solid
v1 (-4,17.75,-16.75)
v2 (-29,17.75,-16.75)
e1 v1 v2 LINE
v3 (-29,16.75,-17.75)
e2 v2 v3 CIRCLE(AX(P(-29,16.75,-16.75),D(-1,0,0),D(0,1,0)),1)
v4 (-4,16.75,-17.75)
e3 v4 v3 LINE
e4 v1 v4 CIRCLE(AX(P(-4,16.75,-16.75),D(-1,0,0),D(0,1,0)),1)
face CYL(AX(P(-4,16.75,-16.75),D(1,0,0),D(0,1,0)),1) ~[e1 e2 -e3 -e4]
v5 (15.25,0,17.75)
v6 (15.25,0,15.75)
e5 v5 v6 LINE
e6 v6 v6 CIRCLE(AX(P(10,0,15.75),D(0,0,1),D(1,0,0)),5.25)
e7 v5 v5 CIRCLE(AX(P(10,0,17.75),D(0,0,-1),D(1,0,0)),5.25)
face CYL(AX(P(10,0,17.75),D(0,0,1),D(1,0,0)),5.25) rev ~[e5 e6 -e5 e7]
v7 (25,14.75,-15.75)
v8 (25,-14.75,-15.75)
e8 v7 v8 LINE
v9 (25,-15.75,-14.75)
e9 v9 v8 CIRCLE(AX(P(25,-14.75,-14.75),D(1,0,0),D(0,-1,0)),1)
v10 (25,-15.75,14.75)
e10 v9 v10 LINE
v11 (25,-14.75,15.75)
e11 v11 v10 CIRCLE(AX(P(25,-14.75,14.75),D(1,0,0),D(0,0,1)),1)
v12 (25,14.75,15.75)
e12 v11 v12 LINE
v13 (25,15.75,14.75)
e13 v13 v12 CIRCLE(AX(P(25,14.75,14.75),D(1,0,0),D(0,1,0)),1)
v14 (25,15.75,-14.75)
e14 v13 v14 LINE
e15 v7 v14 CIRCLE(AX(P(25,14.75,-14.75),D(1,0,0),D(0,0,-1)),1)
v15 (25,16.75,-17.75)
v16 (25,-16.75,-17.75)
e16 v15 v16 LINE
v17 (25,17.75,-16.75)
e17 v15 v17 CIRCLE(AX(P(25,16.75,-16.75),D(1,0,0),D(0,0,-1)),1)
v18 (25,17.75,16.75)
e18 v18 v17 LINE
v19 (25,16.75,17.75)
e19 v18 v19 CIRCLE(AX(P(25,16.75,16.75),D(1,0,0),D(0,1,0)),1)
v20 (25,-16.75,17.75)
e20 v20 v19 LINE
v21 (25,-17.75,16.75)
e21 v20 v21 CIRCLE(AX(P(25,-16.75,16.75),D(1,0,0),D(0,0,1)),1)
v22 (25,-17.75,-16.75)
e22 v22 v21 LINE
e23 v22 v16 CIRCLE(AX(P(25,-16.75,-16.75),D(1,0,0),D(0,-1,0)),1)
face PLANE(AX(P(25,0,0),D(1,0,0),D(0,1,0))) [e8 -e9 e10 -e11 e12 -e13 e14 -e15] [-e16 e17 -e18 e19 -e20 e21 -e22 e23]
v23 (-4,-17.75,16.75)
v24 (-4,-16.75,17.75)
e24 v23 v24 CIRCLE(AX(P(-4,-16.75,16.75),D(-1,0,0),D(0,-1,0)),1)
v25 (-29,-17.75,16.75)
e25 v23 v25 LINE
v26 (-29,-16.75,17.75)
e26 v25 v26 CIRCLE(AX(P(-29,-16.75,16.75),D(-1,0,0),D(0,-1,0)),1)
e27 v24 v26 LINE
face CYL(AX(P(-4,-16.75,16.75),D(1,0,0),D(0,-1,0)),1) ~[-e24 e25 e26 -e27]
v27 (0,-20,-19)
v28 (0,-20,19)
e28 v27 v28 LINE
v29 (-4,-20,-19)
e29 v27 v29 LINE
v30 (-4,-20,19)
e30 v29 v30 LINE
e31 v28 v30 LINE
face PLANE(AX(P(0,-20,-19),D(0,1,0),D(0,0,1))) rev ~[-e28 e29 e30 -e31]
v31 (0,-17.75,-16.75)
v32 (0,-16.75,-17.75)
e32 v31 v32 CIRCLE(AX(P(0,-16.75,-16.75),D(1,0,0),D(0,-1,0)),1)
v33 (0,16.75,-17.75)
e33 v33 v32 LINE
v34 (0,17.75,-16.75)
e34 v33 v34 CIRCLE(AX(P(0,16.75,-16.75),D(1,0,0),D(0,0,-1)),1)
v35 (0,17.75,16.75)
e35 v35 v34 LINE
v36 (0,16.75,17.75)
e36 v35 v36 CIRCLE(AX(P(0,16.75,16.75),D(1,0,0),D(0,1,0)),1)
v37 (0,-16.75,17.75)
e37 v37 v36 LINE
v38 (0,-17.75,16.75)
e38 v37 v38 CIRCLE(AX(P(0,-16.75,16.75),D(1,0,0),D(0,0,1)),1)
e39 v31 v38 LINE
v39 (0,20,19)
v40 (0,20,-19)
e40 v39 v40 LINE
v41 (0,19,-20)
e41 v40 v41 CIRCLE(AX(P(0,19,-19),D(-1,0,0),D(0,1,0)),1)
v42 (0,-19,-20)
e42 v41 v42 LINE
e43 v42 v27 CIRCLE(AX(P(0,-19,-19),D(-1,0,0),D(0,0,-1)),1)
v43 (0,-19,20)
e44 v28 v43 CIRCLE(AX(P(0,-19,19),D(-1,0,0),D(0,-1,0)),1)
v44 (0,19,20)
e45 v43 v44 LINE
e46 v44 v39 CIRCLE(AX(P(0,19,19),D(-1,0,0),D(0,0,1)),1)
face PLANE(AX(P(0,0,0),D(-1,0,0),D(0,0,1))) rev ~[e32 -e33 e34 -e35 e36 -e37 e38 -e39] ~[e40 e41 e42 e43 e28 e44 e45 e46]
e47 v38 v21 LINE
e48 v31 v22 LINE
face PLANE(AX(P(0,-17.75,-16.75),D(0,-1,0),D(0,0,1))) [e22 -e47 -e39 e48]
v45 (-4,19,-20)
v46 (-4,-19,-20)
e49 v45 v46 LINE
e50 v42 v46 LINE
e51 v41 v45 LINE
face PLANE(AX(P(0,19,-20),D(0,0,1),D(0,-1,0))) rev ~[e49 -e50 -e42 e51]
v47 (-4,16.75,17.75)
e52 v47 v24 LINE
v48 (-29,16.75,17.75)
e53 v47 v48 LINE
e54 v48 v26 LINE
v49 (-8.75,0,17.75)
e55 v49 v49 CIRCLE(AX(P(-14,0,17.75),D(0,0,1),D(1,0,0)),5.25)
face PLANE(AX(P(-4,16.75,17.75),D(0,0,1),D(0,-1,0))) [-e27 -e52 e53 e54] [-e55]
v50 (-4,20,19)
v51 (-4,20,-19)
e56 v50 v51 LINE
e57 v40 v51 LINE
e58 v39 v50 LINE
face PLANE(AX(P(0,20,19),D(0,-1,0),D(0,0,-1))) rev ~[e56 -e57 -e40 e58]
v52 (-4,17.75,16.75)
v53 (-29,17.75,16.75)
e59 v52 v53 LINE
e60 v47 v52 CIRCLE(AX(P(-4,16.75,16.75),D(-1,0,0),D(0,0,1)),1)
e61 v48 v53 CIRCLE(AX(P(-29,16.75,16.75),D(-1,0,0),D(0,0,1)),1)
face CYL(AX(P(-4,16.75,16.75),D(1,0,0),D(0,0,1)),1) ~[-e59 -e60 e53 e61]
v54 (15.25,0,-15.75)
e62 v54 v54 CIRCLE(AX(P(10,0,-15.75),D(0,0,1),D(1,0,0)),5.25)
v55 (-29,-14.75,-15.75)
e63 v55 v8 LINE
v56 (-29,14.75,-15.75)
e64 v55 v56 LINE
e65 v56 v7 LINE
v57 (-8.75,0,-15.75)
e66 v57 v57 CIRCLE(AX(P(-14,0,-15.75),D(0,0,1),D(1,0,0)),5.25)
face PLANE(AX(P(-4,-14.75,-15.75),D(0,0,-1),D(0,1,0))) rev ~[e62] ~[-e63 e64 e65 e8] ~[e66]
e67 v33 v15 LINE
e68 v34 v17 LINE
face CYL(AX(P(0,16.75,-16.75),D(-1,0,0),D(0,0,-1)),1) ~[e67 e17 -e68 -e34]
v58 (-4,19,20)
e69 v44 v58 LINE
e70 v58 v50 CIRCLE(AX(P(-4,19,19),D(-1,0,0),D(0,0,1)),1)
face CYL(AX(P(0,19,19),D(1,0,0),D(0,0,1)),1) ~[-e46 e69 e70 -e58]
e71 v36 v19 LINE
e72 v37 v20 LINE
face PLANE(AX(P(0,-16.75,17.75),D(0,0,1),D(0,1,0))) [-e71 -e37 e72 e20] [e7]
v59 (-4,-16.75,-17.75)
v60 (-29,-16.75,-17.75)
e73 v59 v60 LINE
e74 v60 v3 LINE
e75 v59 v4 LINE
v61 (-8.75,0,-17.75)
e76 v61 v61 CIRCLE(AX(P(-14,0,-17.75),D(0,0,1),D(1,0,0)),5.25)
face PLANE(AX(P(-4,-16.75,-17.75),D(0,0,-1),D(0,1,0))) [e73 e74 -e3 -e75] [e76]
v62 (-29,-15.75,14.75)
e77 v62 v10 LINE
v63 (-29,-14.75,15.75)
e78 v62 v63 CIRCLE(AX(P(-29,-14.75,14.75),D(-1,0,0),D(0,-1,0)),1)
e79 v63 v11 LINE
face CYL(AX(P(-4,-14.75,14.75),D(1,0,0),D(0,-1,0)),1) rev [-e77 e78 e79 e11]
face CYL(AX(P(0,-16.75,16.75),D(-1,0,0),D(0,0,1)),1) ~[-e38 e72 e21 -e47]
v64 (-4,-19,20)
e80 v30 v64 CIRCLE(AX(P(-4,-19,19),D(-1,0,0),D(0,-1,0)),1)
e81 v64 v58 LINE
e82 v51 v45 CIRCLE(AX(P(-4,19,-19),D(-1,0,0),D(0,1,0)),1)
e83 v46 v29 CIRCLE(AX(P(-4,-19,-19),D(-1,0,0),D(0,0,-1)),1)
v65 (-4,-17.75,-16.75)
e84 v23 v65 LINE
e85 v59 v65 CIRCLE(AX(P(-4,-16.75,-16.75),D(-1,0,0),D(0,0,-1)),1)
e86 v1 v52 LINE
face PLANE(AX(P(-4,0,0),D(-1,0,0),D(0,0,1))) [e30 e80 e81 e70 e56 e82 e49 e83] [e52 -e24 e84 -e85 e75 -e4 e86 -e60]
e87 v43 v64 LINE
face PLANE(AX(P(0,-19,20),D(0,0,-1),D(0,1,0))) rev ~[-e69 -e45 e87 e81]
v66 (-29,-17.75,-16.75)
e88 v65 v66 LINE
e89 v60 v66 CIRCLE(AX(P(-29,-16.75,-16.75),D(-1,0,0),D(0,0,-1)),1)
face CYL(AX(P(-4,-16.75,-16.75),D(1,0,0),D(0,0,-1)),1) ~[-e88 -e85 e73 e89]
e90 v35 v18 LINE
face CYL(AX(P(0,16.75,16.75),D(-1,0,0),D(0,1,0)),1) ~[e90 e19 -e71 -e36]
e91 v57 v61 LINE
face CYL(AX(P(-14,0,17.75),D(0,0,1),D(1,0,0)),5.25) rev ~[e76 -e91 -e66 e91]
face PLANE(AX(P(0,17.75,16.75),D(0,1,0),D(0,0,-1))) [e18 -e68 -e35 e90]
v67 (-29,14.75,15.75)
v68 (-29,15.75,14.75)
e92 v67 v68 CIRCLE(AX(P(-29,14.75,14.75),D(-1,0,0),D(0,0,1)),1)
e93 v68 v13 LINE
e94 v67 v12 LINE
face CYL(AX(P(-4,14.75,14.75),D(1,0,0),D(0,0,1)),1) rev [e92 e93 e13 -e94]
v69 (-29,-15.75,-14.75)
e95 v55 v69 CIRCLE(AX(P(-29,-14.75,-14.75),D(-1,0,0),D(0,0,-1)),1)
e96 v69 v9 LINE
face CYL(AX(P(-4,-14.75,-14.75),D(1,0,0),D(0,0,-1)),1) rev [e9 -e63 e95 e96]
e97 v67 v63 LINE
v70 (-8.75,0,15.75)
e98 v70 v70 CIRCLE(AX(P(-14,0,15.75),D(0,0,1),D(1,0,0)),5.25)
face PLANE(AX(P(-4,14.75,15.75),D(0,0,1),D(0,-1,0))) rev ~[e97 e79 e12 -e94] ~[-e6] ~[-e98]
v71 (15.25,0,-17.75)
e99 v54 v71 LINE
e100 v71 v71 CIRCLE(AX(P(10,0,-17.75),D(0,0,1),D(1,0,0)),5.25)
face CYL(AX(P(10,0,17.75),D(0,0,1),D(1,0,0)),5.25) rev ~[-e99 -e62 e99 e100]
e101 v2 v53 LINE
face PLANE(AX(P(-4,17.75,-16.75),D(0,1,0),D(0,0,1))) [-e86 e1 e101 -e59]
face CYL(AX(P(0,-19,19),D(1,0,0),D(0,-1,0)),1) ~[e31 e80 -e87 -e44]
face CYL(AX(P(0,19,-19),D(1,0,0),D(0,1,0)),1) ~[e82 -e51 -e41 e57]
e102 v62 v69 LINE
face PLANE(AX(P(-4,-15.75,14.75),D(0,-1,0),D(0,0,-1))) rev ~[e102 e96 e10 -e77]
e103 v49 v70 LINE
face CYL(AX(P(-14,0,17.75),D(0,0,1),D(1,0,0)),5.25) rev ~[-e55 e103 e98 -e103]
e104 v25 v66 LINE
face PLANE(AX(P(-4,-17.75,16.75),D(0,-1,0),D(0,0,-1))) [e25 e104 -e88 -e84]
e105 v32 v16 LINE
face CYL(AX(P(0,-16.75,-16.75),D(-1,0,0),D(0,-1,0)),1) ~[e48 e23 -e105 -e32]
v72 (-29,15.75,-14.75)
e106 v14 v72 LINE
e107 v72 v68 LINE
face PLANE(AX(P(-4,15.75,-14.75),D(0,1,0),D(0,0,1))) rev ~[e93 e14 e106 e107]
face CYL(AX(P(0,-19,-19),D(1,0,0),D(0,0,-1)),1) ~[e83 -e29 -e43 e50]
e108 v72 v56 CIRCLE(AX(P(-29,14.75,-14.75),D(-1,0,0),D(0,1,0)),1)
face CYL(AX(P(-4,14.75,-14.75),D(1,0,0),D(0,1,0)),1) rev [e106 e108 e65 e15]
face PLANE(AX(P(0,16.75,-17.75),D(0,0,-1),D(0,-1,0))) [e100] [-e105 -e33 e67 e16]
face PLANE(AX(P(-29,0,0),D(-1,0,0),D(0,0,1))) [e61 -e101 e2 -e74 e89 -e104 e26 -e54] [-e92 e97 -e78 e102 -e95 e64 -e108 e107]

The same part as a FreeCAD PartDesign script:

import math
import FreeCAD as App
import Part
import Sketcher

doc = App.newDocument("Part")
body = doc.addObject("PartDesign::Body", "Body")

sketch1 = body.newObject("Sketcher::SketchObject", "Sketch")
sketch1.AttachmentSupport = (doc.getObject("YZ_Plane"), [""])
sketch1.MapMode = "FlatFace"
sketch1.addGeometry([
    Part.LineSegment(App.Vector(16.75, 17.75, 0), App.Vector(-16.75, 17.75, 0)),
    Part.ArcOfCircle(Part.Circle(App.Vector(-16.75, 16.75, 0), App.Vector(0, 0, 1), 1), math.radians(90), math.radians(180)),
    Part.LineSegment(App.Vector(-17.75, 16.75, 0), App.Vector(-17.75, -16.75, 0)),
    Part.ArcOfCircle(Part.Circle(App.Vector(-16.75, -16.75, 0), App.Vector(0, 0, 1), 1), math.radians(180), math.radians(270)),
    Part.LineSegment(App.Vector(-16.75, -17.75, 0), App.Vector(16.75, -17.75, 0)),
    Part.ArcOfCircle(Part.Circle(App.Vector(16.75, -16.75, 0), App.Vector(0, 0, 1), 1), math.radians(-90), math.radians(0)),
    Part.LineSegment(App.Vector(17.75, -16.75, 0), App.Vector(17.75, 16.75, 0)),
    Part.ArcOfCircle(Part.Circle(App.Vector(16.75, 16.75, 0), App.Vector(0, 0, 1), 1), math.radians(0), math.radians(90)),
    Part.ArcOfCircle(Part.Circle(App.Vector(-14.75, 14.75, 0), App.Vector(0, 0, 1), 1), math.radians(90), math.radians(180)),
    Part.LineSegment(App.Vector(-14.75, 15.75, 0), App.Vector(14.75, 15.75, 0)),
    Part.ArcOfCircle(Part.Circle(App.Vector(14.75, 14.75, 0), App.Vector(0, 0, 1), 1), math.radians(0), math.radians(90)),
    Part.LineSegment(App.Vector(15.75, 14.75, 0), App.Vector(15.75, -14.75, 0)),
    Part.ArcOfCircle(Part.Circle(App.Vector(14.75, -14.75, 0), App.Vector(0, 0, 1), 1), math.radians(-90), math.radians(0)),
    Part.LineSegment(App.Vector(14.75, -15.75, 0), App.Vector(-14.75, -15.75, 0)),
    Part.ArcOfCircle(Part.Circle(App.Vector(-14.75, -14.75, 0), App.Vector(0, 0, 1), 1), math.radians(180), math.radians(270)),
    Part.LineSegment(App.Vector(-15.75, -14.75, 0), App.Vector(-15.75, 14.75, 0)),
], False)
sketch1.addConstraint([
    Sketcher.Constraint("Tangent", 0, 2, 1, 1),
    Sketcher.Constraint("Tangent", 1, 2, 2, 1),
    Sketcher.Constraint("Tangent", 2, 2, 3, 1),
    Sketcher.Constraint("Tangent", 3, 2, 4, 1),
    Sketcher.Constraint("Tangent", 4, 2, 5, 1),
    Sketcher.Constraint("Tangent", 5, 2, 6, 1),
    Sketcher.Constraint("Tangent", 6, 2, 7, 1),
    Sketcher.Constraint("Tangent", 7, 2, 0, 1),
    Sketcher.Constraint("Tangent", 8, 1, 9, 1),
    Sketcher.Constraint("Tangent", 9, 2, 10, 2),
    Sketcher.Constraint("Tangent", 10, 1, 11, 1),
    Sketcher.Constraint("Tangent", 11, 2, 12, 2),
    Sketcher.Constraint("Tangent", 12, 1, 13, 1),
    Sketcher.Constraint("Tangent", 13, 2, 14, 2),
    Sketcher.Constraint("Tangent", 14, 1, 15, 1),
    Sketcher.Constraint("Tangent", 15, 2, 8, 2),
    Sketcher.Constraint("Horizontal", 0),
    Sketcher.Constraint("Vertical", 2),
    Sketcher.Constraint("Horizontal", 4),
    Sketcher.Constraint("Vertical", 6),
    Sketcher.Constraint("Horizontal", 9),
    Sketcher.Constraint("Vertical", 11),
    Sketcher.Constraint("Horizontal", 13),
    Sketcher.Constraint("Vertical", 15),
    Sketcher.Constraint("Equal", 1, 3),
    Sketcher.Constraint("Equal", 3, 5),
    Sketcher.Constraint("Equal", 5, 7),
    Sketcher.Constraint("Equal", 7, 8),
    Sketcher.Constraint("Equal", 8, 10),
    Sketcher.Constraint("Equal", 10, 12),
    Sketcher.Constraint("Equal", 12, 14),
    Sketcher.Constraint("Symmetric", 1, 3, 5, 3, -1, 1),
    Sketcher.Constraint("Symmetric", 8, 3, 12, 3, -1, 1),
    Sketcher.Constraint("Equal", 4, 2),
    Sketcher.Constraint("Equal", 13, 11),
    Sketcher.Constraint("Radius", 1, 1.0),
    Sketcher.Constraint("DistanceY", 8, 1, 1, 3, 1.0),
    Sketcher.Constraint("DistanceY", 3, 3, 8, 3, 31.5),
])
pad1 = body.newObject("PartDesign::Pad", "Pad")
pad1.Profile = sketch1
pad1.Length = 25

sketch2 = body.newObject("Sketcher::SketchObject", "Sketch001")
sketch2.AttachmentSupport = (doc.getObject("YZ_Plane"), [""])
sketch2.MapMode = "FlatFace"
sketch2.addGeometry([
    Part.ArcOfCircle(Part.Circle(App.Vector(19, 19, 0), App.Vector(0, 0, 1), 1), math.radians(0), math.radians(90)),
    Part.LineSegment(App.Vector(20, 19, 0), App.Vector(20, -19, 0)),
    Part.ArcOfCircle(Part.Circle(App.Vector(19, -19, 0), App.Vector(0, 0, 1), 1), math.radians(-90), math.radians(0)),
    Part.LineSegment(App.Vector(19, -20, 0), App.Vector(-19, -20, 0)),
    Part.ArcOfCircle(Part.Circle(App.Vector(-19, -19, 0), App.Vector(0, 0, 1), 1), math.radians(180), math.radians(270)),
    Part.LineSegment(App.Vector(-20, -19, 0), App.Vector(-20, 19, 0)),
    Part.ArcOfCircle(Part.Circle(App.Vector(-19, 19, 0), App.Vector(0, 0, 1), 1), math.radians(90), math.radians(180)),
    Part.LineSegment(App.Vector(-19, 20, 0), App.Vector(19, 20, 0)),
], False)
sketch2.addConstraint([
    Sketcher.Constraint("Tangent", 0, 1, 1, 1),
    Sketcher.Constraint("Tangent", 1, 2, 2, 2),
    Sketcher.Constraint("Tangent", 2, 1, 3, 1),
    Sketcher.Constraint("Tangent", 3, 2, 4, 2),
    Sketcher.Constraint("Tangent", 4, 1, 5, 1),
    Sketcher.Constraint("Tangent", 5, 2, 6, 2),
    Sketcher.Constraint("Tangent", 6, 1, 7, 1),
    Sketcher.Constraint("Tangent", 7, 2, 0, 2),
    Sketcher.Constraint("Vertical", 1),
    Sketcher.Constraint("Horizontal", 3),
    Sketcher.Constraint("Vertical", 5),
    Sketcher.Constraint("Horizontal", 7),
    Sketcher.Constraint("Equal", 0, 2),
    Sketcher.Constraint("Equal", 2, 4),
    Sketcher.Constraint("Equal", 4, 6),
    Sketcher.Constraint("Symmetric", 0, 3, 4, 3, -1, 1),
    Sketcher.Constraint("Equal", 7, 1),
    Sketcher.Constraint("Radius", 0, 1.0),
    Sketcher.Constraint("DistanceX", 3, 2, 3, 1, 38.0),
])
pad2 = body.newObject("PartDesign::Pad", "Pad001")
pad2.Profile = sketch2
pad2.Length = 4
pad2.Reversed = True

sketch3 = body.newObject("Sketcher::SketchObject", "Sketch002")
sketch3.AttachmentSupport = (doc.getObject("YZ_Plane"), [""])
sketch3.MapMode = "FlatFace"
sketch3.AttachmentOffset = App.Placement(App.Vector(0, 0, -4), App.Rotation())
sketch3.addGeometry([
    Part.LineSegment(App.Vector(15.75, 14.75, 0), App.Vector(15.75, -14.75, 0)),
    Part.ArcOfCircle(Part.Circle(App.Vector(14.75, -14.75, 0), App.Vector(0, 0, 1), 1), math.radians(-90), math.radians(0)),
    Part.LineSegment(App.Vector(14.75, -15.75, 0), App.Vector(-14.75, -15.75, 0)),
    Part.ArcOfCircle(Part.Circle(App.Vector(-14.75, -14.75, 0), App.Vector(0, 0, 1), 1), math.radians(180), math.radians(270)),
    Part.LineSegment(App.Vector(-15.75, -14.75, 0), App.Vector(-15.75, 14.75, 0)),
    Part.ArcOfCircle(Part.Circle(App.Vector(-14.75, 14.75, 0), App.Vector(0, 0, 1), 1), math.radians(90), math.radians(180)),
    Part.LineSegment(App.Vector(-14.75, 15.75, 0), App.Vector(14.75, 15.75, 0)),
    Part.ArcOfCircle(Part.Circle(App.Vector(14.75, 14.75, 0), App.Vector(0, 0, 1), 1), math.radians(0), math.radians(90)),
], False)
sketch3.addConstraint([
    Sketcher.Constraint("Tangent", 0, 2, 1, 2),
    Sketcher.Constraint("Tangent", 1, 1, 2, 1),
    Sketcher.Constraint("Tangent", 2, 2, 3, 2),
    Sketcher.Constraint("Tangent", 3, 1, 4, 1),
    Sketcher.Constraint("Tangent", 4, 2, 5, 2),
    Sketcher.Constraint("Tangent", 5, 1, 6, 1),
    Sketcher.Constraint("Tangent", 6, 2, 7, 2),
    Sketcher.Constraint("Tangent", 7, 1, 0, 1),
    Sketcher.Constraint("Vertical", 0),
    Sketcher.Constraint("Horizontal", 2),
    Sketcher.Constraint("Vertical", 4),
    Sketcher.Constraint("Horizontal", 6),
    Sketcher.Constraint("Equal", 1, 3),
    Sketcher.Constraint("Equal", 3, 5),
    Sketcher.Constraint("Equal", 5, 7),
    Sketcher.Constraint("Symmetric", 1, 3, 5, 3, -1, 1),
    Sketcher.Constraint("Equal", 6, 0),
    Sketcher.Constraint("Radius", 1, 1.0),
    Sketcher.Constraint("DistanceX", 2, 2, 2, 1, 29.5),
])
pocket1 = body.newObject("PartDesign::Pocket", "Pocket")
pocket1.Profile = sketch3
pocket1.Length = 4
pocket1.Reversed = True

sketch4 = body.newObject("Sketcher::SketchObject", "Sketch003")
sketch4.AttachmentSupport = (doc.getObject("YZ_Plane"), [""])
sketch4.MapMode = "FlatFace"
sketch4.AttachmentOffset = App.Placement(App.Vector(0, 0, -4), App.Rotation())
sketch4.addGeometry([
    Part.LineSegment(App.Vector(17.75, 16.75, 0), App.Vector(17.75, -16.75, 0)),
    Part.ArcOfCircle(Part.Circle(App.Vector(16.75, -16.75, 0), App.Vector(0, 0, 1), 1), math.radians(-90), math.radians(0)),
    Part.LineSegment(App.Vector(16.75, -17.75, 0), App.Vector(-16.75, -17.75, 0)),
    Part.ArcOfCircle(Part.Circle(App.Vector(-16.75, -16.75, 0), App.Vector(0, 0, 1), 1), math.radians(180), math.radians(270)),
    Part.LineSegment(App.Vector(-17.75, -16.75, 0), App.Vector(-17.75, 16.75, 0)),
    Part.ArcOfCircle(Part.Circle(App.Vector(-16.75, 16.75, 0), App.Vector(0, 0, 1), 1), math.radians(90), math.radians(180)),
    Part.LineSegment(App.Vector(-16.75, 17.75, 0), App.Vector(16.75, 17.75, 0)),
    Part.ArcOfCircle(Part.Circle(App.Vector(16.75, 16.75, 0), App.Vector(0, 0, 1), 1), math.radians(0), math.radians(90)),
    Part.ArcOfCircle(Part.Circle(App.Vector(14.75, -14.75, 0), App.Vector(0, 0, 1), 1), math.radians(-90), math.radians(0)),
    Part.LineSegment(App.Vector(15.75, -14.75, 0), App.Vector(15.75, 14.75, 0)),
    Part.ArcOfCircle(Part.Circle(App.Vector(14.75, 14.75, 0), App.Vector(0, 0, 1), 1), math.radians(0), math.radians(90)),
    Part.LineSegment(App.Vector(14.75, 15.75, 0), App.Vector(-14.75, 15.75, 0)),
    Part.ArcOfCircle(Part.Circle(App.Vector(-14.75, 14.75, 0), App.Vector(0, 0, 1), 1), math.radians(90), math.radians(180)),
    Part.LineSegment(App.Vector(-15.75, 14.75, 0), App.Vector(-15.75, -14.75, 0)),
    Part.ArcOfCircle(Part.Circle(App.Vector(-14.75, -14.75, 0), App.Vector(0, 0, 1), 1), math.radians(180), math.radians(270)),
    Part.LineSegment(App.Vector(-14.75, -15.75, 0), App.Vector(14.75, -15.75, 0)),
], False)
sketch4.addConstraint([
    Sketcher.Constraint("Tangent", 0, 2, 1, 2),
    Sketcher.Constraint("Tangent", 1, 1, 2, 1),
    Sketcher.Constraint("Tangent", 2, 2, 3, 2),
    Sketcher.Constraint("Tangent", 3, 1, 4, 1),
    Sketcher.Constraint("Tangent", 4, 2, 5, 2),
    Sketcher.Constraint("Tangent", 5, 1, 6, 1),
    Sketcher.Constraint("Tangent", 6, 2, 7, 2),
    Sketcher.Constraint("Tangent", 7, 1, 0, 1),
    Sketcher.Constraint("Tangent", 8, 2, 9, 1),
    Sketcher.Constraint("Tangent", 9, 2, 10, 1),
    Sketcher.Constraint("Tangent", 10, 2, 11, 1),
    Sketcher.Constraint("Tangent", 11, 2, 12, 1),
    Sketcher.Constraint("Tangent", 12, 2, 13, 1),
    Sketcher.Constraint("Tangent", 13, 2, 14, 1),
    Sketcher.Constraint("Tangent", 14, 2, 15, 1),
    Sketcher.Constraint("Tangent", 15, 2, 8, 1),
    Sketcher.Constraint("Vertical", 0),
    Sketcher.Constraint("Horizontal", 2),
    Sketcher.Constraint("Vertical", 4),
    Sketcher.Constraint("Horizontal", 6),
    Sketcher.Constraint("Vertical", 9),
    Sketcher.Constraint("Horizontal", 11),
    Sketcher.Constraint("Vertical", 13),
    Sketcher.Constraint("Horizontal", 15),
    Sketcher.Constraint("Equal", 1, 3),
    Sketcher.Constraint("Equal", 3, 5),
    Sketcher.Constraint("Equal", 5, 7),
    Sketcher.Constraint("Equal", 7, 8),
    Sketcher.Constraint("Equal", 8, 10),
    Sketcher.Constraint("Equal", 10, 12),
    Sketcher.Constraint("Equal", 12, 14),
    Sketcher.Constraint("Symmetric", 1, 3, 5, 3, -1, 1),
    Sketcher.Constraint("Symmetric", 8, 3, 12, 3, -1, 1),
    Sketcher.Constraint("Equal", 6, 0),
    Sketcher.Constraint("Equal", 15, 9),
    Sketcher.Constraint("Radius", 1, 1.0),
    Sketcher.Constraint("DistanceX", 8, 2, 1, 3, 1.0),
    Sketcher.Constraint("DistanceX", 2, 2, 2, 1, 33.5),
])
pad3 = body.newObject("PartDesign::Pad", "Pad002")
pad3.Profile = sketch4
pad3.Length = 25
pad3.Reversed = True

sketch5 = body.newObject("Sketcher::SketchObject", "Sketch004")
sketch5.AttachmentSupport = (doc.getObject("XY_Plane"), [""])
sketch5.MapMode = "FlatFace"
sketch5.AttachmentOffset = App.Placement(App.Vector(0, 0, 17.75), App.Rotation())
sketch5.addGeometry([
    Part.Circle(App.Vector(10, 0, 0), App.Vector(0, 0, 1), 5.25),
    Part.Circle(App.Vector(-14, 0, 0), App.Vector(0, 0, 1), 5.25),
], False)
sketch5.addConstraint([
    Sketcher.Constraint("Equal", 0, 1),
    Sketcher.Constraint("PointOnObject", 0, 3, -1),
    Sketcher.Constraint("PointOnObject", 1, 3, -1),
    Sketcher.Constraint("Diameter", 0, 10.5),
    Sketcher.Constraint("DistanceX", -1, 1, 0, 3, 10.0),
    Sketcher.Constraint("DistanceX", 1, 3, 0, 3, 24.0),
])
pocket2 = body.newObject("PartDesign::Pocket", "Pocket001")
pocket2.Profile = sketch5
pocket2.Length = 50

doc.recompute()
